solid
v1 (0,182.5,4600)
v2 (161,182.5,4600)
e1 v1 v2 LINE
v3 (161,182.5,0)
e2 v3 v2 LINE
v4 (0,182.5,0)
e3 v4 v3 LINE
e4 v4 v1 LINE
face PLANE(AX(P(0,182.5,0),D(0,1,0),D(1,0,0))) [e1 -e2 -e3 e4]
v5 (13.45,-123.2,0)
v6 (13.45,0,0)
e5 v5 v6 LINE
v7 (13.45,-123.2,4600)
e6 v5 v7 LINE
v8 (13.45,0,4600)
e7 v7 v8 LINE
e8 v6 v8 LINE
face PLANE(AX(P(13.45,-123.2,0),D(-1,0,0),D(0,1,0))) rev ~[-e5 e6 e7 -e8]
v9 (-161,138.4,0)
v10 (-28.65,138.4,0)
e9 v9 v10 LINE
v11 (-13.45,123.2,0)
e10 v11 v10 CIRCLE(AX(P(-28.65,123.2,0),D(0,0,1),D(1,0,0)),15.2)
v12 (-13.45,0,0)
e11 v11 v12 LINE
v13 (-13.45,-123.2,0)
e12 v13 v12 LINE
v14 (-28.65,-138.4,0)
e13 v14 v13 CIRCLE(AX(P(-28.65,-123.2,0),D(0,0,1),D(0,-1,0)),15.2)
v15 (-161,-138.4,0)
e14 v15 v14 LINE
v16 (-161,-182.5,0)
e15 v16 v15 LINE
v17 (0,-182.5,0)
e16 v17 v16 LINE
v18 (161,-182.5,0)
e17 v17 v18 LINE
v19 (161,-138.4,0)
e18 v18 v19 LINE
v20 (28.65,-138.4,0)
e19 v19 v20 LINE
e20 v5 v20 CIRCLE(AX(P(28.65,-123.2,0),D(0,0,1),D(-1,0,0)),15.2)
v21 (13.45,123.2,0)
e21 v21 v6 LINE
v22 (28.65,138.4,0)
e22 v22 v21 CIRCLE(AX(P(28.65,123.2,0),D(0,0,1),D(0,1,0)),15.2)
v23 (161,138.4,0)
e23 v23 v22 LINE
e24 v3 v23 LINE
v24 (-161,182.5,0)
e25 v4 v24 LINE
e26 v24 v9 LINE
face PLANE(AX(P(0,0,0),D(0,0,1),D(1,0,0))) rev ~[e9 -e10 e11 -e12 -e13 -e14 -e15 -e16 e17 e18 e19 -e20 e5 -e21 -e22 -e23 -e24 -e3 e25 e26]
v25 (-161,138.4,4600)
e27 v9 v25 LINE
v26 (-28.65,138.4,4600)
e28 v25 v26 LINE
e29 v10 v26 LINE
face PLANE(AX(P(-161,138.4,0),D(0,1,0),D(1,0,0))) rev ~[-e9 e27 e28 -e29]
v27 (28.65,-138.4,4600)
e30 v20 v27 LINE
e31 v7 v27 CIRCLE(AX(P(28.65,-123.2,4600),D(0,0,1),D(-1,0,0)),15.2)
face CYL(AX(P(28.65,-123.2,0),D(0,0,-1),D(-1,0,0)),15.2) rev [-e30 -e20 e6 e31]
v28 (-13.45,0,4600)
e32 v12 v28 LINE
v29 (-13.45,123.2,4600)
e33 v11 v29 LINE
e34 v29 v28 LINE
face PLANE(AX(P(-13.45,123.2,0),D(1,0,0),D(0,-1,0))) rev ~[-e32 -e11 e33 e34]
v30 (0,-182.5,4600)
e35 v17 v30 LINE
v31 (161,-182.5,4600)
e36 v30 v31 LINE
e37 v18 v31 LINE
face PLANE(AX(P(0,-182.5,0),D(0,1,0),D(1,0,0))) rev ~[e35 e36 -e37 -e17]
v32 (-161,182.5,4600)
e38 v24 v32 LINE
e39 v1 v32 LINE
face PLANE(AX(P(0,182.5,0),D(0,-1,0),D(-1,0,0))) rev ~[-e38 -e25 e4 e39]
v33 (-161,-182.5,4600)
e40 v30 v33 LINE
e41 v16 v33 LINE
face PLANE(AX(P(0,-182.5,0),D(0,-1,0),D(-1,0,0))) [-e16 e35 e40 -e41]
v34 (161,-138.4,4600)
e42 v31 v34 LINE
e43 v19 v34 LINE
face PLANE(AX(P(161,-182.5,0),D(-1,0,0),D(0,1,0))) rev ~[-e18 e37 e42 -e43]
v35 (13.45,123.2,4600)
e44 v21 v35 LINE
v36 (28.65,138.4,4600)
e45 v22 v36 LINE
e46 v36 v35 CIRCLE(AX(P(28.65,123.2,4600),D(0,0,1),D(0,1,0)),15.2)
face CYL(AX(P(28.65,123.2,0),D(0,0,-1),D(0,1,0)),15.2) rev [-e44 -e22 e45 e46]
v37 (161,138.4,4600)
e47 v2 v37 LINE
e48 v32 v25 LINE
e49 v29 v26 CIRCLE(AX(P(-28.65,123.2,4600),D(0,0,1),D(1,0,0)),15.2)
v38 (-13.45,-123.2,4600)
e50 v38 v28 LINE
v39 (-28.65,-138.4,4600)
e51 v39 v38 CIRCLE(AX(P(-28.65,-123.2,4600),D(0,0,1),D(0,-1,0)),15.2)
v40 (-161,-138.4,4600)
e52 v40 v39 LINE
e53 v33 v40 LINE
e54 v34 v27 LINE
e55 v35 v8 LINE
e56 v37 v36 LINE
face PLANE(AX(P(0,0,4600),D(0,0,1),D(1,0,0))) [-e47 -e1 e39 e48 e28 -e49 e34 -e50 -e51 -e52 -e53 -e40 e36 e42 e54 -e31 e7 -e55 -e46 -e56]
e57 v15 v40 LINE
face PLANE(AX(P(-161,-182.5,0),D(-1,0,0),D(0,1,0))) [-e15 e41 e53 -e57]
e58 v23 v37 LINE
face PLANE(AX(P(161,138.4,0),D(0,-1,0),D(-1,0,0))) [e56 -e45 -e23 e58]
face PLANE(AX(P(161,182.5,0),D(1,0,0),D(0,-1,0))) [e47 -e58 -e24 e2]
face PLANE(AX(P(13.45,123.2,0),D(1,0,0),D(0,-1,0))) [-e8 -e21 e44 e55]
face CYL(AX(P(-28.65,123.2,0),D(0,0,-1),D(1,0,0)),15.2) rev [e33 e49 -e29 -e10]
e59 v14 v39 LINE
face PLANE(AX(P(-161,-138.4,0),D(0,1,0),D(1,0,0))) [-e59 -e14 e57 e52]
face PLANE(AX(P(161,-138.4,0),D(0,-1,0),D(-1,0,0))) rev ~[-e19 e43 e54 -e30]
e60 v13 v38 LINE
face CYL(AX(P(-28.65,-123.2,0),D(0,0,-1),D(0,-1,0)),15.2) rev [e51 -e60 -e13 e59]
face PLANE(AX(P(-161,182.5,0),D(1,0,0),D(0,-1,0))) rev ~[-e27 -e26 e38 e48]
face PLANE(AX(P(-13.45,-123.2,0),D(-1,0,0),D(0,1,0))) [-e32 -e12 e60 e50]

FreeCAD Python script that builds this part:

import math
import FreeCAD as App
import Part
import Sketcher

doc = App.newDocument("Part")
body = doc.addObject("PartDesign::Body", "Body")

# Sketch on XY plane
sketch1 = doc.addObject("Sketcher::SketchObject", "Sketch")
body.addObject(sketch1)
sketch1.AttachmentSupport = (doc.XY_Plane, [""])
sketch1.MapMode = "FlatFace"
sketch1.addGeometry([
    Part.LineSegment(App.Vector(-161, -138, 0), App.Vector(-161, -182, 0)),  # 0
    Part.LineSegment(App.Vector(-161, -182, 0), App.Vector(161, -182, 0)),  # 1
    Part.LineSegment(App.Vector(161, -182, 0), App.Vector(161, -138, 0)),  # 2
    Part.LineSegment(App.Vector(161, -138, 0), App.Vector(29, -138, 0)),  # 3
    Part.ArcOfCircle(Part.Circle(App.Vector(29, -123, 0), App.Vector(0, 0, 1), 15), math.radians(180), math.radians(270)),  # 4
    Part.LineSegment(App.Vector(13, -123, 0), App.Vector(13, 123, 0)),  # 5
    Part.ArcOfCircle(Part.Circle(App.Vector(29, 123, 0), App.Vector(0, 0, 1), 15), math.radians(90), math.radians(180)),  # 6
    Part.LineSegment(App.Vector(29, 138, 0), App.Vector(161, 138, 0)),  # 7
    Part.LineSegment(App.Vector(161, 138, 0), App.Vector(161, 182, 0)),  # 8
    Part.LineSegment(App.Vector(161, 182, 0), App.Vector(-161, 182, 0)),  # 9
    Part.LineSegment(App.Vector(-161, 182, 0), App.Vector(-161, 138, 0)),  # 10
    Part.LineSegment(App.Vector(-161, 138, 0), App.Vector(-29, 138, 0)),  # 11
    Part.ArcOfCircle(Part.Circle(App.Vector(-29, 123, 0), App.Vector(0, 0, 1), 15), math.radians(0), math.radians(90)),  # 12
    Part.LineSegment(App.Vector(-13, 123, 0), App.Vector(-13, -123, 0)),  # 13
    Part.ArcOfCircle(Part.Circle(App.Vector(-29, -123, 0), App.Vector(0, 0, 1), 15), math.radians(-90), math.radians(0)),  # 14
    Part.LineSegment(App.Vector(-29, -138, 0), App.Vector(-161, -138, 0)),  # 15
], False)
sketch1.addConstraint([
    Sketcher.Constraint("Coincident", 0, 2, 1, 1),
    Sketcher.Constraint("Coincident", 1, 2, 2, 1),
    Sketcher.Constraint("Coincident", 2, 2, 3, 1),
    Sketcher.Constraint("Tangent", 3, 2, 4, 2),
    Sketcher.Constraint("Tangent", 4, 1, 5, 1),
    Sketcher.Constraint("Tangent", 5, 2, 6, 2),
    Sketcher.Constraint("Tangent", 6, 1, 7, 1),
    Sketcher.Constraint("Coincident", 7, 2, 8, 1),
    Sketcher.Constraint("Coincident", 8, 2, 9, 1),
    Sketcher.Constraint("Coincident", 9, 2, 10, 1),
    Sketcher.Constraint("Coincident", 10, 2, 11, 1),
    Sketcher.Constraint("Tangent", 11, 2, 12, 2),
    Sketcher.Constraint("Tangent", 12, 1, 13, 1),
    Sketcher.Constraint("Tangent", 13, 2, 14, 2),
    Sketcher.Constraint("Tangent", 14, 1, 15, 1),
    Sketcher.Constraint("Coincident", 15, 2, 0, 1),
    Sketcher.Constraint("Vertical", 0),
    Sketcher.Constraint("Horizontal", 1),
    Sketcher.Constraint("Vertical", 2),
    Sketcher.Constraint("Horizontal", 3),
    Sketcher.Constraint("Vertical", 5),
    Sketcher.Constraint("Horizontal", 7),
    Sketcher.Constraint("Vertical", 8),
    Sketcher.Constraint("Horizontal", 9),
    Sketcher.Constraint("Vertical", 10),
    Sketcher.Constraint("Horizontal", 11),
    Sketcher.Constraint("Vertical", 13),
    Sketcher.Constraint("Horizontal", 15),
    Sketcher.Constraint("Equal", 4, 6),
    Sketcher.Constraint("Equal", 6, 12),
    Sketcher.Constraint("Equal", 12, 14),
    Sketcher.Constraint("Symmetric", 4, 3, 12, 3, -1, 1),
    Sketcher.Constraint("Symmetric", 0, 2, 8, 2, -1, 1),
    Sketcher.Constraint("Symmetric", 7, 2, 10, 2, -2),
    Sketcher.Constraint("Symmetric", 2, 2, 15, 2, -2),
    Sketcher.Constraint("Radius", 4, 15.2),
    Sketcher.Constraint("DistanceY", 0, 2, 0, 1, 44.1),
    Sketcher.Constraint("DistanceX", 0, 2, -1, 1, 161.0),
    Sketcher.Constraint("DistanceY", 0, 2, -1, 1, 182.5),
    Sketcher.Constraint("DistanceX", -1, 1, 4, 1, 13.45),
])
pad1 = doc.addObject("PartDesign::Pad", "Pad")
body.addObject(pad1)
pad1.Profile = sketch1
pad1.Length = 4600

doc.recompute()
